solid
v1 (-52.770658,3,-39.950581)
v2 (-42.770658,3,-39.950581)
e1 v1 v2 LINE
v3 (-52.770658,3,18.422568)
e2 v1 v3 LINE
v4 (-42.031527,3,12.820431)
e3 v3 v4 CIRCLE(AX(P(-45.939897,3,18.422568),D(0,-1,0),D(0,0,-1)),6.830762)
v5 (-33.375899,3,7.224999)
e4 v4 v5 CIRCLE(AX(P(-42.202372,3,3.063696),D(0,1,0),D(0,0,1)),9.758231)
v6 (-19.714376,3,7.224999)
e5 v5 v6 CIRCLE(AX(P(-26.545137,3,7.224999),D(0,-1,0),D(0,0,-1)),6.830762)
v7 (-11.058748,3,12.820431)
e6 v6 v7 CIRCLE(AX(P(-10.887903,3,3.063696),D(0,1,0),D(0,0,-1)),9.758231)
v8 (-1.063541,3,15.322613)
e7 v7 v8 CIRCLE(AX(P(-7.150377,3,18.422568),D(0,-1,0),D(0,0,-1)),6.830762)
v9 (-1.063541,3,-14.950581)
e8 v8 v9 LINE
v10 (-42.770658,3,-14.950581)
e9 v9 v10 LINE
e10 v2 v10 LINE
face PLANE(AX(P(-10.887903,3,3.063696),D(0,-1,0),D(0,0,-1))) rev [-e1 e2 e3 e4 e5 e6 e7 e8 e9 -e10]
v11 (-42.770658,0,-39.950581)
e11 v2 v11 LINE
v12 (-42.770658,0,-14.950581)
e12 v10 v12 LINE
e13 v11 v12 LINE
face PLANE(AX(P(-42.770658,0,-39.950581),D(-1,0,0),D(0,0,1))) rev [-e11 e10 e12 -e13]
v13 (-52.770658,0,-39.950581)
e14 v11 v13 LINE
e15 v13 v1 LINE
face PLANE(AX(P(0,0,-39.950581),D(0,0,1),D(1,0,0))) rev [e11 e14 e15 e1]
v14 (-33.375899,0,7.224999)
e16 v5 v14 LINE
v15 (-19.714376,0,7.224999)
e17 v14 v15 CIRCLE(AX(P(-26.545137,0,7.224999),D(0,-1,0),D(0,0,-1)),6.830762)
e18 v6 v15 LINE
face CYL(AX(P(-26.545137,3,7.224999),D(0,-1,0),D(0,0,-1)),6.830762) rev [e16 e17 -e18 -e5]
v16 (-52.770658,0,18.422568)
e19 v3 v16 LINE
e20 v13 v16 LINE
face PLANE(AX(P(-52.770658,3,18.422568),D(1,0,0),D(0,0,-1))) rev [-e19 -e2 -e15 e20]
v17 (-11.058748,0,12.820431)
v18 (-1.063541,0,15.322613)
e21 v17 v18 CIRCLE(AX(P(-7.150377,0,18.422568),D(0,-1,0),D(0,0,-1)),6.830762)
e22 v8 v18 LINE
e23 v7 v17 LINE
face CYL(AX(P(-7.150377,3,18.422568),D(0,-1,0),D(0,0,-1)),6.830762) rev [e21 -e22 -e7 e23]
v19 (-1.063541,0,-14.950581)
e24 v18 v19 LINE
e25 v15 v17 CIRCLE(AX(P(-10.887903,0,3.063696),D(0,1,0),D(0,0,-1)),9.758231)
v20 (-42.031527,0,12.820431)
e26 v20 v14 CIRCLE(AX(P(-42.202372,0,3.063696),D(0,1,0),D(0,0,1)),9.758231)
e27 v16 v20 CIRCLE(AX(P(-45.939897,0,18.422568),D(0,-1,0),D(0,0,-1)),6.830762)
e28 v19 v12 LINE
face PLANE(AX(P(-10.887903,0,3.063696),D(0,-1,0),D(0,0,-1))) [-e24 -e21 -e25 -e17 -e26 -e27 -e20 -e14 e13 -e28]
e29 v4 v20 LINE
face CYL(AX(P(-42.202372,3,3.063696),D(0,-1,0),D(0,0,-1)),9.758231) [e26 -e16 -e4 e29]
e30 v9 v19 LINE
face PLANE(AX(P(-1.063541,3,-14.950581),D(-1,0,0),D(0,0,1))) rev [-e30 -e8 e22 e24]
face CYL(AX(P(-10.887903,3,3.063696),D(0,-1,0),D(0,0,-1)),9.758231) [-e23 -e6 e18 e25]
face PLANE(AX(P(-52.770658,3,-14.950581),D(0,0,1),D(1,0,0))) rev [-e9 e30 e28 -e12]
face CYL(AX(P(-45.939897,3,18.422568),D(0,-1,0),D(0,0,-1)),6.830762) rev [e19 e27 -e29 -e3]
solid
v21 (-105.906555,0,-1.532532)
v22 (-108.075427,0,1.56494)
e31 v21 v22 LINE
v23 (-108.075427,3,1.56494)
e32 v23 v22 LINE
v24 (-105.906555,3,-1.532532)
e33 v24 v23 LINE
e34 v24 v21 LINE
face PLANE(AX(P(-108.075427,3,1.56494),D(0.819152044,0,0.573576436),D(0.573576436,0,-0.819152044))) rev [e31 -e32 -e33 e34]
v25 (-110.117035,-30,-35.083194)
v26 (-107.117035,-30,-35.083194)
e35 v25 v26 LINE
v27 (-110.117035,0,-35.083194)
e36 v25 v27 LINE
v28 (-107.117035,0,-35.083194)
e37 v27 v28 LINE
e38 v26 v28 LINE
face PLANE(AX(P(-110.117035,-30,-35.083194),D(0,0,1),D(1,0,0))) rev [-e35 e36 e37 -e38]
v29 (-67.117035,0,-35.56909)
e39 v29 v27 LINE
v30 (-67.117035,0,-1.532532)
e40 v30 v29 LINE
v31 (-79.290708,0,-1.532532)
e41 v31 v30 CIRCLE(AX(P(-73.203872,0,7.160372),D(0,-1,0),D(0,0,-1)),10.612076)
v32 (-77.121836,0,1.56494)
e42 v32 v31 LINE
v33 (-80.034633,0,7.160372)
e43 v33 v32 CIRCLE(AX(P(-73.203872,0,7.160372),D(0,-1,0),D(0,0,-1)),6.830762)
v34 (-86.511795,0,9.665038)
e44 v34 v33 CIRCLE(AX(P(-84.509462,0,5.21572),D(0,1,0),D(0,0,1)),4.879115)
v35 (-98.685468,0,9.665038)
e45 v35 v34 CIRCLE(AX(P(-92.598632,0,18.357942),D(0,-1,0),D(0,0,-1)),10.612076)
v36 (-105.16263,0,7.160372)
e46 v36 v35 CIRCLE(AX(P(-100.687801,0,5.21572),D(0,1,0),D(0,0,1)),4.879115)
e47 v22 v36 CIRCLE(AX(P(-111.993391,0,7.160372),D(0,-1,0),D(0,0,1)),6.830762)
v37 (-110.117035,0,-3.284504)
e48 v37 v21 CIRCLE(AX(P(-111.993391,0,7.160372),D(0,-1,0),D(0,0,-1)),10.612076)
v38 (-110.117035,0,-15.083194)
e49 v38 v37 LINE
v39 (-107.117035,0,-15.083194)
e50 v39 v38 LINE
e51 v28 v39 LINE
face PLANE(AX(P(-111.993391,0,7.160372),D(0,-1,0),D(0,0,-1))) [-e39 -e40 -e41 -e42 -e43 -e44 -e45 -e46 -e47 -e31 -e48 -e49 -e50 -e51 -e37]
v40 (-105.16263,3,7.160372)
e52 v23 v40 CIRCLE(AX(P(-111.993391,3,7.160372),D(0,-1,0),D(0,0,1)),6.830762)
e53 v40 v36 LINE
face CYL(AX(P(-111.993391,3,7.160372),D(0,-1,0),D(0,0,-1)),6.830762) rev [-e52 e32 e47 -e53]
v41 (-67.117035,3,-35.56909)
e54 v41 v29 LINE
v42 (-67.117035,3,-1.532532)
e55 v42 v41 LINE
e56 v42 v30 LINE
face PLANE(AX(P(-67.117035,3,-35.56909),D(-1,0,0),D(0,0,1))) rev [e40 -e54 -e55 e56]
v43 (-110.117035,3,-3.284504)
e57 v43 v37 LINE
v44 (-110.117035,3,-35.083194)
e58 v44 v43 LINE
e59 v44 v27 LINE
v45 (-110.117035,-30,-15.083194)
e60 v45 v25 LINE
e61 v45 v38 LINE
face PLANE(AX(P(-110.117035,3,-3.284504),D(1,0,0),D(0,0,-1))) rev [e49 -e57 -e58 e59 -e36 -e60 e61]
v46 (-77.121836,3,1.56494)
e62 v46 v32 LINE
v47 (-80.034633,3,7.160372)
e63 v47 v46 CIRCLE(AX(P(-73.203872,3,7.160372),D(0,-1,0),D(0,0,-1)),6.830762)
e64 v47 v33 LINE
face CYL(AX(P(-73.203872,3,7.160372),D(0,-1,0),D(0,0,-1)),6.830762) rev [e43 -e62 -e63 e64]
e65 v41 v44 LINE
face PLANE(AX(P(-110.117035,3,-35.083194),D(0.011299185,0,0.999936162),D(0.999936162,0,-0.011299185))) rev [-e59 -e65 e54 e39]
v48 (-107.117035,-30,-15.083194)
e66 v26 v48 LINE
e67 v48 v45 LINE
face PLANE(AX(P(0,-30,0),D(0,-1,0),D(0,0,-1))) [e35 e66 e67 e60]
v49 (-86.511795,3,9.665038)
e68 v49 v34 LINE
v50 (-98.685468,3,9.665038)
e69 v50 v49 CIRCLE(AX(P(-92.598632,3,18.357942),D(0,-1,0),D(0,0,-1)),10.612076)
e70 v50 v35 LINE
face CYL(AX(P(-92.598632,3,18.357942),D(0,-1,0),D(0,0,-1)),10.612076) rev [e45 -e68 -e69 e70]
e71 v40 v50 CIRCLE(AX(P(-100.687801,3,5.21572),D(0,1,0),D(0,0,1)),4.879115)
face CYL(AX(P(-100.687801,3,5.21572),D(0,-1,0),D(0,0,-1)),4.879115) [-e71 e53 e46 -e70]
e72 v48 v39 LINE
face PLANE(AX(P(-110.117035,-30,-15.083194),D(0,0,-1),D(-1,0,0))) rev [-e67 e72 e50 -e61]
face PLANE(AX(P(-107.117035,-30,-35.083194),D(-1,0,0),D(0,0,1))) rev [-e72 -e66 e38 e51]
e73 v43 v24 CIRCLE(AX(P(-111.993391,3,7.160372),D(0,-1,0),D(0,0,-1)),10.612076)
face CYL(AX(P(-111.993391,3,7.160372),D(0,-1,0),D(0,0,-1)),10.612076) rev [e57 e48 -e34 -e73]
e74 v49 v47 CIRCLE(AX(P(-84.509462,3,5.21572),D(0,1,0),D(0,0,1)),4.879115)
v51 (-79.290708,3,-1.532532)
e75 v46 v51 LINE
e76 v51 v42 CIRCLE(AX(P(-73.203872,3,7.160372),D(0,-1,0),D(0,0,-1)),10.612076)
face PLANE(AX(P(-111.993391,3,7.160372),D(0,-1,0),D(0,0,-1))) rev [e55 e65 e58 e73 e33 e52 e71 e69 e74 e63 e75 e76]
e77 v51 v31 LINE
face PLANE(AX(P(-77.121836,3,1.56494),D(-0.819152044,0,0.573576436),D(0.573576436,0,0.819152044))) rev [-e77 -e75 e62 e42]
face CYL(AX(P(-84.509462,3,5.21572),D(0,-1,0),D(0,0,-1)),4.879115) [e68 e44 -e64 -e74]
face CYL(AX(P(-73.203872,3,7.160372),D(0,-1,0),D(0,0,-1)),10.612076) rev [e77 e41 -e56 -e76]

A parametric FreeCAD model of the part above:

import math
import FreeCAD as App
import Part
import Sketcher
Q = App.Units.Quantity

doc = App.newDocument("Part")
params = doc.addObject("Spreadsheet::Sheet", "Params")
for row, (alias, value) in enumerate([
    ("pad1_length", "3 mm"),
    ("sketch2_width", "3 mm"),
    ("sketch2_height", "20 mm"),
    ("pad2_length", "30 mm"),
    ("pad3_length", "3 mm"),
    ("sketch4_width", "10 mm"),
    ("sketch4_height", "3 mm"),
    ("pad4_length", "25 mm"),
], start=1):
    params.set(f"A{row}", alias)
    params.set(f"B{row}", "=" + value)
    params.setAlias(f"B{row}", alias)

body = doc.addObject("PartDesign::Body", "Body")

# Sketch on XZ plane
sketch1 = doc.addObject("Sketcher::SketchObject", "Sketch")
body.addObject(sketch1)
sketch1.AttachmentSupport = (doc.XZ_Plane, [""])
sketch1.MapMode = "FlatFace"
sketch1.addGeometry([
    Part.LineSegment(App.Vector(-105.9, -1.5, 0), App.Vector(-108.1, 1.6, 0)),  # 0
    Part.ArcOfCircle(Part.Circle(App.Vector(-112, 7.2, 0), App.Vector(0, 0, 1), 6.8), math.radians(-55), math.radians(0)),  # 1
    Part.ArcOfCircle(Part.Circle(App.Vector(-100.7, 5.2, 0), App.Vector(0, 0, 1), 4.9), math.radians(66), math.radians(157)),  # 2
    Part.ArcOfCircle(Part.Circle(App.Vector(-92.6, 18.4, 0), App.Vector(0, 0, 1), 10.6), math.radians(-125), math.radians(-55)),  # 3
    Part.ArcOfCircle(Part.Circle(App.Vector(-84.5, 5.2, 0), App.Vector(0, 0, 1), 4.9), math.radians(23), math.radians(114)),  # 4
    Part.ArcOfCircle(Part.Circle(App.Vector(-73.2, 7.2, 0), App.Vector(0, 0, 1), 6.8), math.radians(-180), math.radians(-125)),  # 5
    Part.LineSegment(App.Vector(-77.1, 1.6, 0), App.Vector(-79.3, -1.5, 0)),  # 6
    Part.ArcOfCircle(Part.Circle(App.Vector(-73.2, 7.2, 0), App.Vector(0, 0, 1), 10.6), math.radians(-125), math.radians(-55)),  # 7
    Part.LineSegment(App.Vector(-67.1, -1.5, 0), App.Vector(-67.1, -35.6, 0)),  # 8
    Part.LineSegment(App.Vector(-67.1, -35.6, 0), App.Vector(-110.1, -35.1, 0)),  # 9
    Part.LineSegment(App.Vector(-110.1, -35.1, 0), App.Vector(-110.1, -3.3, 0)),  # 10
    Part.ArcOfCircle(Part.Circle(App.Vector(-112, 7.2, 0), App.Vector(0, 0, 1), 10.6), math.radians(-80), math.radians(-55)),  # 11
], False)
sketch1.addConstraint([
    Sketcher.Constraint("Coincident", 0, 2, 1, 1),
    Sketcher.Constraint("Coincident", 1, 2, 2, 2),
    Sketcher.Constraint("Coincident", 2, 1, 3, 1),
    Sketcher.Constraint("Coincident", 3, 2, 4, 2),
    Sketcher.Constraint("Coincident", 4, 1, 5, 1),
    Sketcher.Constraint("Coincident", 5, 2, 6, 1),
    Sketcher.Constraint("Coincident", 6, 2, 7, 1),
    Sketcher.Constraint("Coincident", 7, 2, 8, 1),
    Sketcher.Constraint("Coincident", 8, 2, 9, 1),
    Sketcher.Constraint("Coincident", 9, 2, 10, 1),
    Sketcher.Constraint("Coincident", 10, 2, 11, 1),
    Sketcher.Constraint("Coincident", 11, 2, 0, 1),
    Sketcher.Constraint("Vertical", 8),
    Sketcher.Constraint("Vertical", 10),
    Sketcher.Constraint("Coincident", 7, 3, 5, 3),
    Sketcher.Constraint("Coincident", 11, 3, 1, 3),
    Sketcher.Constraint("Equal", 2, 4),
    Sketcher.Constraint("Equal", 1, 5),
    Sketcher.Constraint("Equal", 3, 7),
    Sketcher.Constraint("Equal", 7, 11),
    Sketcher.Constraint("Horizontal", 2, 3, 4, 3),
    Sketcher.Constraint("Horizontal", 1, 3, 5, 3),
    Sketcher.Constraint("Horizontal", 11, 3, 1, 2),
    Sketcher.Constraint("Horizontal", 2, 1, 3, 2),
    Sketcher.Constraint("Horizontal", 1, 2, 4, 1),
    Sketcher.Constraint("Horizontal", 0, 2, 5, 2),
    Sketcher.Constraint("Horizontal", 6, 2, 7, 2),
    Sketcher.Constraint("Horizontal", 7, 2, 11, 2),
    Sketcher.Constraint("Angle", 0, Q("125 deg")),
    Sketcher.Constraint("Radius", 1, 6.830762),
    Sketcher.Constraint("Radius", 2, 4.879115),
    Sketcher.Constraint("Radius", 3, 10.612076),
    Sketcher.Constraint("DistanceX", 1, 2, 3, 3, 12.563998),
    Sketcher.Constraint("DistanceY", 8, 2, 8, 1, 34.036558),
    Sketcher.Constraint("DistanceY", 10, 1, 10, 2, 31.798689),
    Sketcher.Constraint("DistanceX", 2, 3, -1, 1, 100.687801),
    Sketcher.Constraint("DistanceY", 0, 2, 2, 1, 8.100098),
    Sketcher.Constraint("DistanceX", 5, 2, 7, 2, 10.004801),
    Sketcher.Constraint("DistanceX", 1, 3, -1, 1, 111.993391),
    Sketcher.Constraint("DistanceY", -1, 1, 2, 3, 5.21572),
    Sketcher.Constraint("DistanceX", 10, 2, 11, 2, 4.21048),
])
pad1 = doc.addObject("PartDesign::Pad", "Pad")
body.addObject(pad1)
pad1.Profile = sketch1
pad1.setExpression("Length", "Params.pad1_length")
pad1.Reversed = True

# Sketch on XZ plane
sketch2 = doc.addObject("Sketcher::SketchObject", "Sketch001")
body.addObject(sketch2)
sketch2.AttachmentSupport = (doc.XZ_Plane, [""])
sketch2.MapMode = "FlatFace"
sketch2.addGeometry([
    Part.LineSegment(App.Vector(-110.1, -15.1, 0), App.Vector(-110.1, -35.1, 0)),
    Part.LineSegment(App.Vector(-110.1, -35.1, 0), App.Vector(-107.1, -35.1, 0)),
    Part.LineSegment(App.Vector(-107.1, -35.1, 0), App.Vector(-107.1, -15.1, 0)),
    Part.LineSegment(App.Vector(-107.1, -15.1, 0), App.Vector(-110.1, -15.1, 0)),
], False)
sketch2.addConstraint([
    Sketcher.Constraint("Coincident", 0, 2, 1, 1),
    Sketcher.Constraint("Coincident", 1, 2, 2, 1),
    Sketcher.Constraint("Coincident", 2, 2, 3, 1),
    Sketcher.Constraint("Coincident", 3, 2, 0, 1),
    Sketcher.Constraint("Vertical", 0),
    Sketcher.Constraint("Horizontal", 1),
    Sketcher.Constraint("Vertical", 2),
    Sketcher.Constraint("Horizontal", 3),
    Sketcher.Constraint("DistanceX", 1, 1, 1, 2, 3.0),
    Sketcher.Constraint("DistanceY", 0, 2, 0, 1, 20.0),
    Sketcher.Constraint("DistanceX", 0, 2, -1, 1, 110.117035),
    Sketcher.Constraint("DistanceY", 0, 2, -1, 1, 35.083194),
])
sketch2.setExpression("Constraints[8]", "Params.sketch2_width")
sketch2.setExpression("Constraints[9]", "Params.sketch2_height")
pad2 = doc.addObject("PartDesign::Pad", "Pad001")
body.addObject(pad2)
pad2.Profile = sketch2
pad2.setExpression("Length", "Params.pad2_length")
body2 = doc.addObject("PartDesign::Body", "Body001")

# Sketch on XZ plane
sketch3 = doc.addObject("Sketcher::SketchObject", "Sketch002")
body2.addObject(sketch3)
sketch3.AttachmentSupport = (doc.getObject("XZ_Plane001"), [""])
sketch3.MapMode = "FlatFace"
sketch3.addGeometry([
    Part.LineSegment(App.Vector(-52.770658, -14.950581, 0), App.Vector(-52.770658, 18.422568, 0)),  # 0
    Part.ArcOfCircle(Part.Circle(App.Vector(-45.939897, 18.422568, 0), App.Vector(0, 0, 1), 6.830762), math.radians(180), math.radians(304.901823)),  # 1
    Part.ArcOfCircle(Part.Circle(App.Vector(-42.202372, 3.063696, 0), App.Vector(0, 0, 1), 9.758231), math.radians(25.241864), math.radians(88.996826)),  # 2
    Part.ArcOfCircle(Part.Circle(App.Vector(-26.545137, 7.224999, 0), App.Vector(0, 0, 1), 6.830762), math.radians(-180), math.radians(0)),  # 3
    Part.ArcOfCircle(Part.Circle(App.Vector(-10.887903, 3.063696, 0), App.Vector(0, 0, 1), 9.758231), math.radians(91.003174), math.radians(154.758136)),  # 4
    Part.ArcOfCircle(Part.Circle(App.Vector(-7.150377, 18.422568, 0), App.Vector(0, 0, 1), 6.830762), math.radians(-124.901823), math.radians(-26.989215)),  # 5
    Part.LineSegment(App.Vector(-1.063541, 15.322613, 0), App.Vector(-1.063541, -14.950581, 0)),  # 6
    Part.LineSegment(App.Vector(-1.063541, -14.950581, 0), App.Vector(-52.770658, -14.950581, 0)),  # 7
], False)
sketch3.addConstraint([
    Sketcher.Constraint("Tangent", 0, 2, 1, 1),
    Sketcher.Constraint("Coincident", 1, 2, 2, 2),
    Sketcher.Constraint("Coincident", 2, 1, 3, 1),
    Sketcher.Constraint("Coincident", 3, 2, 4, 2),
    Sketcher.Constraint("Coincident", 4, 1, 5, 1),
    Sketcher.Constraint("Coincident", 5, 2, 6, 1),
    Sketcher.Constraint("Coincident", 6, 2, 7, 1),
    Sketcher.Constraint("Coincident", 7, 2, 0, 1),
    Sketcher.Constraint("Vertical", 0),
    Sketcher.Constraint("Vertical", 6),
    Sketcher.Constraint("Horizontal", 7),
    Sketcher.Constraint("Equal", 1, 3),
    Sketcher.Constraint("Equal", 2, 4),
    Sketcher.Constraint("Equal", 3, 5),
    Sketcher.Constraint("Horizontal", 2, 3, 4, 3),
    Sketcher.Constraint("Horizontal", 1, 3, 5, 3),
    Sketcher.Constraint("Horizontal", 3, 3, 2, 1),
    Sketcher.Constraint("Horizontal", 2, 1, 3, 2),
    Sketcher.Constraint("Horizontal", 1, 2, 4, 1),
    Sketcher.Constraint("Radius", 1, 6.830762),
    Sketcher.Constraint("Radius", 2, 9.758231),
    Sketcher.Constraint("DistanceY", -1, 1, 3, 3, 7.224999),
    Sketcher.Constraint("DistanceX", 1, 3, 2, 1, 12.563998),
    Sketcher.Constraint("DistanceY", 0, 1, 0, 2, 33.373149),
    Sketcher.Constraint("DistanceX", 2, 1, -1, 1, 33.375899),
    Sketcher.Constraint("DistanceX", 7, 2, 7, 1, 51.707118),
    Sketcher.Constraint("DistanceY", -1, 1, 1, 3, 18.422568),
    Sketcher.Constraint("DistanceX", 2, 3, -1, 1, 42.202372),
])
pad3 = doc.addObject("PartDesign::Pad", "Pad002")
body2.addObject(pad3)
pad3.Profile = sketch3
pad3.setExpression("Length", "Params.pad3_length")
pad3.Reversed = True

# Sketch on XY plane
sketch4 = doc.addObject("Sketcher::SketchObject", "Sketch003")
body2.addObject(sketch4)
sketch4.AttachmentSupport = (doc.getObject("XY_Plane001"), [""])
sketch4.MapMode = "FlatFace"
sketch4.AttachmentOffset = App.Placement(App.Vector(0, 0, -14.950581), App.Rotation())
sketch4.addGeometry([
    Part.LineSegment(App.Vector(-42.8, 3, 0), App.Vector(-42.8, 0, 0)),
    Part.LineSegment(App.Vector(-42.8, 0, 0), App.Vector(-52.8, 0, 0)),
    Part.LineSegment(App.Vector(-52.8, 0, 0), App.Vector(-52.8, 3, 0)),
    Part.LineSegment(App.Vector(-52.8, 3, 0), App.Vector(-42.8, 3, 0)),
], False)
sketch4.addConstraint([
    Sketcher.Constraint("Coincident", 0, 2, 1, 1),
    Sketcher.Constraint("Coincident", 1, 2, 2, 1),
    Sketcher.Constraint("Coincident", 2, 2, 3, 1),
    Sketcher.Constraint("Coincident", 3, 2, 0, 1),
    Sketcher.Constraint("Vertical", 0),
    Sketcher.Constraint("Horizontal", 1),
    Sketcher.Constraint("Vertical", 2),
    Sketcher.Constraint("Horizontal", 3),
    Sketcher.Constraint("PointOnObject", 0, 2, -1),
    Sketcher.Constraint("DistanceX", 1, 2, 1, 1, 10.0),
    Sketcher.Constraint("DistanceY", 0, 2, 0, 1, 3.0),
    Sketcher.Constraint("DistanceX", 0, 2, -1, 1, 42.770658),
])
sketch4.setExpression("Constraints[9]", "Params.sketch4_width")
sketch4.setExpression("Constraints[10]", "Params.sketch4_height")
pad4 = doc.addObject("PartDesign::Pad", "Pad003")
body2.addObject(pad4)
pad4.Profile = sketch4
pad4.setExpression("Length", "Params.pad4_length")
pad4.Reversed = True

doc.recompute()
